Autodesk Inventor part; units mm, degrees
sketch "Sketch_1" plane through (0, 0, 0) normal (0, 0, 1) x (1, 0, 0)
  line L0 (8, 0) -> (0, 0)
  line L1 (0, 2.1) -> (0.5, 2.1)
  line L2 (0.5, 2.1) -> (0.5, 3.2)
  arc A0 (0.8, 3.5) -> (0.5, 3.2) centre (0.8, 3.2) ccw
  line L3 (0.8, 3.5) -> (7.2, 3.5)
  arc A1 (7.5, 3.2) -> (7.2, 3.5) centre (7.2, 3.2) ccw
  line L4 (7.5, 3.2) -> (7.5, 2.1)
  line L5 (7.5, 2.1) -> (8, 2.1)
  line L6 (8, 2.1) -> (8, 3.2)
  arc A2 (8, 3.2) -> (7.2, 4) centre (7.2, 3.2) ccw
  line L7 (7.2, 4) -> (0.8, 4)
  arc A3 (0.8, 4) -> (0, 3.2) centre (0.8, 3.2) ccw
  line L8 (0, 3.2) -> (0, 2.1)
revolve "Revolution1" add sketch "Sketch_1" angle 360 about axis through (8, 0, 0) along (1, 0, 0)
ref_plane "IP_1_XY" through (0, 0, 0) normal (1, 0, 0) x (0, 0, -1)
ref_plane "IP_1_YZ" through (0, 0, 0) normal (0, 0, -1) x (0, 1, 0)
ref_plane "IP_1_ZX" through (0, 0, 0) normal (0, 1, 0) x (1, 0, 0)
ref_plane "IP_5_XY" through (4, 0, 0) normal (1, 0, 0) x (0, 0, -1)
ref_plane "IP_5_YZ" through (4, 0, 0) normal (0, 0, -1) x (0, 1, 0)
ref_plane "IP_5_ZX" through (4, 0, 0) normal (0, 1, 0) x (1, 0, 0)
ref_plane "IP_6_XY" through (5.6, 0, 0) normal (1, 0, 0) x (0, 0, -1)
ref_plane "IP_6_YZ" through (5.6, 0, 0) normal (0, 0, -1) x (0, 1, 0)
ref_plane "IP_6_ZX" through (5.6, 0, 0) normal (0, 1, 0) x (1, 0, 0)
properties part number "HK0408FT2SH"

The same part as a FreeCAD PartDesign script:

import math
import FreeCAD as App
import Part
import Sketcher
from FreeCAD import Vector
Q = App.Units.Quantity

doc = App.newDocument("Part")
body = doc.addObject("PartDesign::Body", "Body")

# Sketch on XY plane
sketch1 = body.newObject("Sketcher::SketchObject", "Sketch")
sketch1.AttachmentSupport = (doc.getObject("XY_Plane"), [""])
sketch1.MapMode = "FlatFace"
sketch1.addGeometry(Part.LineSegment(Vector(0, 3.2, 0), Vector(0, 2.1, 0)), False)
sketch1.addGeometry(Part.LineSegment(Vector(0, 2.1, 0), Vector(0.5, 2.1, 0)), False)
sketch1.addGeometry(Part.LineSegment(Vector(0.5, 2.1, 0), Vector(0.5, 3.2, 0)), False)
sketch1.addGeometry(Part.ArcOfCircle(Part.Circle(Vector(0.8, 3.2, 0), Vector(0, 0, 1), 0.3), math.radians(90), math.radians(180)), False)
sketch1.addGeometry(Part.LineSegment(Vector(0.8, 3.5, 0), Vector(7.2, 3.5, 0)), False)
sketch1.addGeometry(Part.ArcOfCircle(Part.Circle(Vector(7.2, 3.2, 0), Vector(0, 0, 1), 0.3), math.radians(0), math.radians(90)), False)
sketch1.addGeometry(Part.LineSegment(Vector(7.5, 3.2, 0), Vector(7.5, 2.1, 0)), False)
sketch1.addGeometry(Part.LineSegment(Vector(7.5, 2.1, 0), Vector(8, 2.1, 0)), False)
sketch1.addGeometry(Part.LineSegment(Vector(8, 2.1, 0), Vector(8, 3.2, 0)), False)
sketch1.addGeometry(Part.ArcOfCircle(Part.Circle(Vector(7.2, 3.2, 0), Vector(0, 0, 1), 0.8), math.radians(0), math.radians(90)), False)
sketch1.addGeometry(Part.LineSegment(Vector(7.2, 4, 0), Vector(0.8, 4, 0)), False)
sketch1.addGeometry(Part.ArcOfCircle(Part.Circle(Vector(0.8, 3.2, 0), Vector(0, 0, 1), 0.8), math.radians(90), math.radians(180)), False)
sketch1.addConstraint(Sketcher.Constraint("Coincident", 0, 2, 1, 1))
sketch1.addConstraint(Sketcher.Constraint("Coincident", 1, 2, 2, 1))
sketch1.addConstraint(Sketcher.Constraint("Tangent", 2, 2, 3, 2))
sketch1.addConstraint(Sketcher.Constraint("Tangent", 3, 1, 4, 1))
sketch1.addConstraint(Sketcher.Constraint("Tangent", 4, 2, 5, 2))
sketch1.addConstraint(Sketcher.Constraint("Tangent", 5, 1, 6, 1))
sketch1.addConstraint(Sketcher.Constraint("Coincident", 6, 2, 7, 1))
sketch1.addConstraint(Sketcher.Constraint("Coincident", 7, 2, 8, 1))
sketch1.addConstraint(Sketcher.Constraint("Tangent", 8, 2, 9, 1))
sketch1.addConstraint(Sketcher.Constraint("Tangent", 9, 2, 10, 1))
sketch1.addConstraint(Sketcher.Constraint("Tangent", 10, 2, 11, 1))
sketch1.addConstraint(Sketcher.Constraint("Tangent", 11, 2, 0, 1))
sketch1.addConstraint(Sketcher.Constraint("Vertical", 0))
sketch1.addConstraint(Sketcher.Constraint("Horizontal", 1))
sketch1.addConstraint(Sketcher.Constraint("Vertical", 2))
sketch1.addConstraint(Sketcher.Constraint("Horizontal", 4))
sketch1.addConstraint(Sketcher.Constraint("Vertical", 6))
sketch1.addConstraint(Sketcher.Constraint("Horizontal", 7))
sketch1.addConstraint(Sketcher.Constraint("Vertical", 8))
sketch1.addConstraint(Sketcher.Constraint("Horizontal", 10))
sketch1.addConstraint(Sketcher.Constraint("Coincident", 9, 3, 5, 3))
sketch1.addConstraint(Sketcher.Constraint("Coincident", 11, 3, 3, 3))
sketch1.addConstraint(Sketcher.Constraint("Equal", 3, 5))
sketch1.addConstraint(Sketcher.Constraint("PointOnObject", 0, 2, -2))
sketch1.addConstraint(Sketcher.Constraint("Horizontal", 1, 2, 6, 2))
sketch1.addConstraint(Sketcher.Constraint("Radius", 3, Q("0.3 mm")))
sketch1.addConstraint(Sketcher.Constraint("Radius", 9, Q("0.8 mm")))
sketch1.addConstraint(Sketcher.Constraint("DistanceX", 4, 1, 4, 2, Q("6.4 mm")))
sketch1.addConstraint(Sketcher.Constraint("DistanceY", 0, 2, 0, 1, Q("1.1 mm")))
sketch1.addConstraint(Sketcher.Constraint("DistanceY", -1, 1, 9, 2, Q("4 mm")))
revolution = body.newObject("PartDesign::Revolution", "Revolution")
revolution.Profile = sketch1
revolution.ReferenceAxis = (sketch1, ["H_Axis"])
revolution.Angle = 360

doc.recompute()
